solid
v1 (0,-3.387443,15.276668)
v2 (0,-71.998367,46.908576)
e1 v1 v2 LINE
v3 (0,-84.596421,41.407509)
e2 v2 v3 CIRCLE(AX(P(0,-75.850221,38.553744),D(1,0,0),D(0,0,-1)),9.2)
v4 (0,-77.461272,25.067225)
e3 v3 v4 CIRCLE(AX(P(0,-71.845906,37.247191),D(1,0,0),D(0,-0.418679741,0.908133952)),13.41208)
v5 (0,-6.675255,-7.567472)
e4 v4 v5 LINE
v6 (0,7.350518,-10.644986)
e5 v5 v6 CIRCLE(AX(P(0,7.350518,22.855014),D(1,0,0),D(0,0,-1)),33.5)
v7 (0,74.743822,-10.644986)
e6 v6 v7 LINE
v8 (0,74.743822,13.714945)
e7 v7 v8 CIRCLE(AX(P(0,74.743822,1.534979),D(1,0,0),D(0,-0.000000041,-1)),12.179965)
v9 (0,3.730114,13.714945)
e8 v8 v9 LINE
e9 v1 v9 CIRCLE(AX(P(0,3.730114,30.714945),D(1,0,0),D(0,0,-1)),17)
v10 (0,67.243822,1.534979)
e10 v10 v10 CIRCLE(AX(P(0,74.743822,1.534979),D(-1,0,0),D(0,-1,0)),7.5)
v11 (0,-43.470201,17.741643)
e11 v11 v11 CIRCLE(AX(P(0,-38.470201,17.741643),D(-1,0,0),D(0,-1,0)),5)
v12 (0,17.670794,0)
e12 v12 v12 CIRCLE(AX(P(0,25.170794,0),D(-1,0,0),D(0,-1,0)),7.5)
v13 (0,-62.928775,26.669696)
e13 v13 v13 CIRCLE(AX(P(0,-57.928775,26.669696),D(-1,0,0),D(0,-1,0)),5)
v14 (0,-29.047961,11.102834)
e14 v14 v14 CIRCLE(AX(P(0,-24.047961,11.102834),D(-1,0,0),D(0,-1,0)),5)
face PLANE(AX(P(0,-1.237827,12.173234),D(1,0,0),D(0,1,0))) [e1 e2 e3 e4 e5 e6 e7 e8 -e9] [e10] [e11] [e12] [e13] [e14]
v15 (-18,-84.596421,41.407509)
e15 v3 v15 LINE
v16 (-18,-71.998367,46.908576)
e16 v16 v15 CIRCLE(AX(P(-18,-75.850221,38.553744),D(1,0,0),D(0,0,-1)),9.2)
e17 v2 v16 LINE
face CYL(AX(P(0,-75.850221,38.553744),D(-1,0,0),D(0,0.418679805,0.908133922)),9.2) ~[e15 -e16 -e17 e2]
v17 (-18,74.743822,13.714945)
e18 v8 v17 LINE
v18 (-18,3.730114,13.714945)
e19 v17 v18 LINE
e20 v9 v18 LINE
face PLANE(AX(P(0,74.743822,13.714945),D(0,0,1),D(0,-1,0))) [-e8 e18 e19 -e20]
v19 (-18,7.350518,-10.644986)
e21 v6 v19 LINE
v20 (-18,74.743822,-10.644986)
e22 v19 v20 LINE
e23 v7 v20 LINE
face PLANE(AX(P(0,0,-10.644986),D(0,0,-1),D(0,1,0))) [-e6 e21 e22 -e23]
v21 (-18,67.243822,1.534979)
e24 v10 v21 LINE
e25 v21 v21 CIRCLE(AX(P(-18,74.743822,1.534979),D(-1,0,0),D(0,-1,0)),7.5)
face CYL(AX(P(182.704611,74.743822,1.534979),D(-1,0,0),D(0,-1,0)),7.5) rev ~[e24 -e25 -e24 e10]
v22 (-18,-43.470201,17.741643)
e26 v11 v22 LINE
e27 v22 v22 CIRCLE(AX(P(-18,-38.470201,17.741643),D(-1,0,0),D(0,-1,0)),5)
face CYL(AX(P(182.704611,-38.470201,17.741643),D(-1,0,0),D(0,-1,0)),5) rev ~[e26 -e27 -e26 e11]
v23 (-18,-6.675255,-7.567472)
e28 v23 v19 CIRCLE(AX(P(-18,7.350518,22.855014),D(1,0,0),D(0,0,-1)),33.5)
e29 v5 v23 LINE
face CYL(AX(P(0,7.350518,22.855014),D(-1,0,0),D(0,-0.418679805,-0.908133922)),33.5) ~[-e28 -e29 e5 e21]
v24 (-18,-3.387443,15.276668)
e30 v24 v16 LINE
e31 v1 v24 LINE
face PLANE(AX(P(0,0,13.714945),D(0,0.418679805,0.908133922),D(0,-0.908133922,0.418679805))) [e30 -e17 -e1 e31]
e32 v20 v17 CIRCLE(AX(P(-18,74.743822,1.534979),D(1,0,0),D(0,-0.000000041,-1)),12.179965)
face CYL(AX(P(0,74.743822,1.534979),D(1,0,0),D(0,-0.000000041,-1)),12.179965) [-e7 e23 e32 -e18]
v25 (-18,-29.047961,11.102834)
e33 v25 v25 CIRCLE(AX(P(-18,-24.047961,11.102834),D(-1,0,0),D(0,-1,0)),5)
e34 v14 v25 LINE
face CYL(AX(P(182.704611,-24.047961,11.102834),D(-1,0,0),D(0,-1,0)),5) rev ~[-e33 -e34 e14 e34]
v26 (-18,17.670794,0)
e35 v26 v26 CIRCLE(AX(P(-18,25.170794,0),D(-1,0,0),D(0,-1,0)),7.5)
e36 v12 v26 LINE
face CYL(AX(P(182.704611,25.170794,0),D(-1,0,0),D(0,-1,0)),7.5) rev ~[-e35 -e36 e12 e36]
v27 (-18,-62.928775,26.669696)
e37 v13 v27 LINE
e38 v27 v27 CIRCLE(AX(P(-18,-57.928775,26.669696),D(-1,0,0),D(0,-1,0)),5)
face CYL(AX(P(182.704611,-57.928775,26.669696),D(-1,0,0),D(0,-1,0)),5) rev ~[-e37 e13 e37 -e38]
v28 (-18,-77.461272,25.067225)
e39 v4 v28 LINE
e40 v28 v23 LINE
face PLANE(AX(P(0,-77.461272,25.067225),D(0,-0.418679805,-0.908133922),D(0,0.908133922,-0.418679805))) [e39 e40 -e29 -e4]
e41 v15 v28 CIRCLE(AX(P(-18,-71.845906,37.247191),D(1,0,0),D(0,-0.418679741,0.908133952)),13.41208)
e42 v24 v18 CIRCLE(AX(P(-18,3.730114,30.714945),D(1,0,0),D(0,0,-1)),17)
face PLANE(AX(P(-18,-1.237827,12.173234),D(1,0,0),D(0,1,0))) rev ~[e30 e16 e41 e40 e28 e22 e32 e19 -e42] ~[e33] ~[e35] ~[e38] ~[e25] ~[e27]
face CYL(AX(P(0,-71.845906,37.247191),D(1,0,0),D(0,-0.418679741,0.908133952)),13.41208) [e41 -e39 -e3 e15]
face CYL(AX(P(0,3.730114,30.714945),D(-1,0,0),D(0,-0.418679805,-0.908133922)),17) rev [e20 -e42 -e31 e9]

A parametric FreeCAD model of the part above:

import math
import FreeCAD as App
import Part
import Sketcher


def edges_at(feature, points):
    """Names of the edges that pass closest to the given points."""
    edges = feature.Shape.Edges
    near = lambda p: min(range(len(edges)), key=lambda i: edges[i].distToShape(Part.Vertex(*p))[0])
    return sorted({f"Edge{near(p) + 1}" for p in points})

doc = App.newDocument("Part")
body = doc.addObject("PartDesign::Body", "Body")

sketch1 = body.newObject("Sketcher::SketchObject", "Sketch")
sketch1.AttachmentSupport = (doc.getObject("YZ_Plane"), [""])
sketch1.MapMode = "FlatFace"
sketch1.addGeometry([
    Part.LineSegment(App.Vector(74.743822, 13.714945, 0), App.Vector(0, 13.714945, 0)),
    Part.LineSegment(App.Vector(0, 13.714945, 0), App.Vector(-77.461272, 49.427156, 0)),
    Part.ArcOfCircle(Part.Circle(App.Vector(-71.845906, 37.247191, 0), App.Vector(0, 0, 1), 13.41208), math.radians(114.751262), math.radians(245.248738)),
    Part.LineSegment(App.Vector(-77.461272, 25.067225, 0), App.Vector(0, -10.644986, 0)),
    Part.LineSegment(App.Vector(0, -10.644986, 0), App.Vector(74.743822, -10.644986, 0)),
    Part.ArcOfCircle(Part.Circle(App.Vector(74.743822, 1.534979, 0), App.Vector(0, 0, 1), 12.179965), math.radians(-90.000002), math.radians(90.000002)),
], False)
sketch1.addConstraint([
    Sketcher.Constraint("Coincident", 0, 2, 1, 1),
    Sketcher.Constraint("Coincident", 1, 2, 2, 1),
    Sketcher.Constraint("Tangent", 2, 2, 3, 1),
    Sketcher.Constraint("Coincident", 3, 2, 4, 1),
    Sketcher.Constraint("Tangent", 4, 2, 5, 1),
    Sketcher.Constraint("Tangent", 5, 2, 0, 1),
    Sketcher.Constraint("Horizontal", 0),
    Sketcher.Constraint("Horizontal", 4),
    Sketcher.Constraint("PointOnObject", 0, 2, -2),
    Sketcher.Constraint("PointOnObject", 3, 2, -2),
    Sketcher.Constraint("Parallel", 1, 3),
    Sketcher.Constraint("Vertical", 1, 2, 2, 2),
    Sketcher.Constraint("Radius", 2, 13.41208),
    Sketcher.Constraint("Radius", 5, 12.179965),
    Sketcher.Constraint("DistanceX", 0, 2, 0, 1, 74.743822),
    Sketcher.Constraint("Distance", 1, 85.29719),
    Sketcher.Constraint("DistanceY", -1, 1, 2, 3, 37.247191),
])
pad1 = body.newObject("PartDesign::Pad", "Pad")
pad1.Profile = sketch1
pad1.Length = 18
pad1.Reversed = True
doc.recompute()

fillet = body.newObject("PartDesign::Fillet", "Fillet")
fillet.Base = (pad1, edges_at(pad1, [(-9, -77.461, 49.427)]))
fillet.Radius = 9.2

sketch2 = body.newObject("Sketcher::SketchObject", "Sketch001")
sketch2.AttachmentSupport = (doc.getObject("YZ_Plane"), [""])
sketch2.MapMode = "FlatFace"
sketch2.addGeometry([
    Part.Circle(App.Vector(-57.928775, 26.669696, 0), App.Vector(0, 0, 1), 5),
    Part.Circle(App.Vector(-38.470201, 17.741643, 0), App.Vector(0, 0, 1), 5),
    Part.Circle(App.Vector(-24.047961, 11.102834, 0), App.Vector(0, 0, 1), 5),
], False)
sketch2.addConstraint([
    Sketcher.Constraint("Equal", 0, 1),
    Sketcher.Constraint("Equal", 1, 2),
    Sketcher.Constraint("Diameter", 0, 10.0),
    Sketcher.Constraint("DistanceX", 1, 3, -1, 1, 38.470201),
    Sketcher.Constraint("DistanceX", 2, 3, -1, 1, 24.047961),
    Sketcher.Constraint("DistanceY", 2, 3, 1, 3, 6.638809),
    Sketcher.Constraint("DistanceY", 2, 3, 0, 3, 15.566862),
    Sketcher.Constraint("DistanceX", 0, 3, -1, 1, 57.928775),
    Sketcher.Constraint("DistanceY", -1, 1, 0, 3, 26.669696),
])
doc.recompute()
hole = body.newObject("PartDesign::Hole", "Hole")
hole.Profile = sketch2
hole.ThreadType = "None"
hole.Diameter = 10
hole.DepthType = "ThroughAll"
doc.recompute()

fillet2 = body.newObject("PartDesign::Fillet", "Fillet001")
fillet2.Base = (hole, edges_at(hole, [(-9, 0, -10.645)]))
fillet2.Radius = 33.5
doc.recompute()

fillet3 = body.newObject("PartDesign::Fillet", "Fillet002")
fillet3.Base = (fillet2, edges_at(fillet2, [(-9, 0, 13.715)]))
fillet3.Radius = 17

sketch3 = body.newObject("Sketcher::SketchObject", "Sketch002")
sketch3.AttachmentSupport = (doc.getObject("YZ_Plane"), [""])
sketch3.MapMode = "FlatFace"
sketch3.addGeometry([
    Part.Circle(App.Vector(25.170794, 0, 0), App.Vector(0, 0, 1), 7.5),
    Part.Circle(App.Vector(74.743822, 1.534979, 0), App.Vector(0, 0, 1), 7.5),
], False)
sketch3.addConstraint([
    Sketcher.Constraint("Equal", 0, 1),
    Sketcher.Constraint("PointOnObject", 0, 3, -1),
    Sketcher.Constraint("Diameter", 0, 15.0),
    Sketcher.Constraint("DistanceX", -1, 1, 1, 3, 74.743822),
    Sketcher.Constraint("DistanceY", -1, 1, 1, 3, 1.534979),
    Sketcher.Constraint("DistanceX", -1, 1, 0, 3, 25.170794),
])
doc.recompute()
hole2 = body.newObject("PartDesign::Hole", "Hole001")
hole2.Profile = sketch3
hole2.ThreadType = "None"
hole2.Diameter = 15
hole2.DepthType = "ThroughAll"

doc.recompute()
